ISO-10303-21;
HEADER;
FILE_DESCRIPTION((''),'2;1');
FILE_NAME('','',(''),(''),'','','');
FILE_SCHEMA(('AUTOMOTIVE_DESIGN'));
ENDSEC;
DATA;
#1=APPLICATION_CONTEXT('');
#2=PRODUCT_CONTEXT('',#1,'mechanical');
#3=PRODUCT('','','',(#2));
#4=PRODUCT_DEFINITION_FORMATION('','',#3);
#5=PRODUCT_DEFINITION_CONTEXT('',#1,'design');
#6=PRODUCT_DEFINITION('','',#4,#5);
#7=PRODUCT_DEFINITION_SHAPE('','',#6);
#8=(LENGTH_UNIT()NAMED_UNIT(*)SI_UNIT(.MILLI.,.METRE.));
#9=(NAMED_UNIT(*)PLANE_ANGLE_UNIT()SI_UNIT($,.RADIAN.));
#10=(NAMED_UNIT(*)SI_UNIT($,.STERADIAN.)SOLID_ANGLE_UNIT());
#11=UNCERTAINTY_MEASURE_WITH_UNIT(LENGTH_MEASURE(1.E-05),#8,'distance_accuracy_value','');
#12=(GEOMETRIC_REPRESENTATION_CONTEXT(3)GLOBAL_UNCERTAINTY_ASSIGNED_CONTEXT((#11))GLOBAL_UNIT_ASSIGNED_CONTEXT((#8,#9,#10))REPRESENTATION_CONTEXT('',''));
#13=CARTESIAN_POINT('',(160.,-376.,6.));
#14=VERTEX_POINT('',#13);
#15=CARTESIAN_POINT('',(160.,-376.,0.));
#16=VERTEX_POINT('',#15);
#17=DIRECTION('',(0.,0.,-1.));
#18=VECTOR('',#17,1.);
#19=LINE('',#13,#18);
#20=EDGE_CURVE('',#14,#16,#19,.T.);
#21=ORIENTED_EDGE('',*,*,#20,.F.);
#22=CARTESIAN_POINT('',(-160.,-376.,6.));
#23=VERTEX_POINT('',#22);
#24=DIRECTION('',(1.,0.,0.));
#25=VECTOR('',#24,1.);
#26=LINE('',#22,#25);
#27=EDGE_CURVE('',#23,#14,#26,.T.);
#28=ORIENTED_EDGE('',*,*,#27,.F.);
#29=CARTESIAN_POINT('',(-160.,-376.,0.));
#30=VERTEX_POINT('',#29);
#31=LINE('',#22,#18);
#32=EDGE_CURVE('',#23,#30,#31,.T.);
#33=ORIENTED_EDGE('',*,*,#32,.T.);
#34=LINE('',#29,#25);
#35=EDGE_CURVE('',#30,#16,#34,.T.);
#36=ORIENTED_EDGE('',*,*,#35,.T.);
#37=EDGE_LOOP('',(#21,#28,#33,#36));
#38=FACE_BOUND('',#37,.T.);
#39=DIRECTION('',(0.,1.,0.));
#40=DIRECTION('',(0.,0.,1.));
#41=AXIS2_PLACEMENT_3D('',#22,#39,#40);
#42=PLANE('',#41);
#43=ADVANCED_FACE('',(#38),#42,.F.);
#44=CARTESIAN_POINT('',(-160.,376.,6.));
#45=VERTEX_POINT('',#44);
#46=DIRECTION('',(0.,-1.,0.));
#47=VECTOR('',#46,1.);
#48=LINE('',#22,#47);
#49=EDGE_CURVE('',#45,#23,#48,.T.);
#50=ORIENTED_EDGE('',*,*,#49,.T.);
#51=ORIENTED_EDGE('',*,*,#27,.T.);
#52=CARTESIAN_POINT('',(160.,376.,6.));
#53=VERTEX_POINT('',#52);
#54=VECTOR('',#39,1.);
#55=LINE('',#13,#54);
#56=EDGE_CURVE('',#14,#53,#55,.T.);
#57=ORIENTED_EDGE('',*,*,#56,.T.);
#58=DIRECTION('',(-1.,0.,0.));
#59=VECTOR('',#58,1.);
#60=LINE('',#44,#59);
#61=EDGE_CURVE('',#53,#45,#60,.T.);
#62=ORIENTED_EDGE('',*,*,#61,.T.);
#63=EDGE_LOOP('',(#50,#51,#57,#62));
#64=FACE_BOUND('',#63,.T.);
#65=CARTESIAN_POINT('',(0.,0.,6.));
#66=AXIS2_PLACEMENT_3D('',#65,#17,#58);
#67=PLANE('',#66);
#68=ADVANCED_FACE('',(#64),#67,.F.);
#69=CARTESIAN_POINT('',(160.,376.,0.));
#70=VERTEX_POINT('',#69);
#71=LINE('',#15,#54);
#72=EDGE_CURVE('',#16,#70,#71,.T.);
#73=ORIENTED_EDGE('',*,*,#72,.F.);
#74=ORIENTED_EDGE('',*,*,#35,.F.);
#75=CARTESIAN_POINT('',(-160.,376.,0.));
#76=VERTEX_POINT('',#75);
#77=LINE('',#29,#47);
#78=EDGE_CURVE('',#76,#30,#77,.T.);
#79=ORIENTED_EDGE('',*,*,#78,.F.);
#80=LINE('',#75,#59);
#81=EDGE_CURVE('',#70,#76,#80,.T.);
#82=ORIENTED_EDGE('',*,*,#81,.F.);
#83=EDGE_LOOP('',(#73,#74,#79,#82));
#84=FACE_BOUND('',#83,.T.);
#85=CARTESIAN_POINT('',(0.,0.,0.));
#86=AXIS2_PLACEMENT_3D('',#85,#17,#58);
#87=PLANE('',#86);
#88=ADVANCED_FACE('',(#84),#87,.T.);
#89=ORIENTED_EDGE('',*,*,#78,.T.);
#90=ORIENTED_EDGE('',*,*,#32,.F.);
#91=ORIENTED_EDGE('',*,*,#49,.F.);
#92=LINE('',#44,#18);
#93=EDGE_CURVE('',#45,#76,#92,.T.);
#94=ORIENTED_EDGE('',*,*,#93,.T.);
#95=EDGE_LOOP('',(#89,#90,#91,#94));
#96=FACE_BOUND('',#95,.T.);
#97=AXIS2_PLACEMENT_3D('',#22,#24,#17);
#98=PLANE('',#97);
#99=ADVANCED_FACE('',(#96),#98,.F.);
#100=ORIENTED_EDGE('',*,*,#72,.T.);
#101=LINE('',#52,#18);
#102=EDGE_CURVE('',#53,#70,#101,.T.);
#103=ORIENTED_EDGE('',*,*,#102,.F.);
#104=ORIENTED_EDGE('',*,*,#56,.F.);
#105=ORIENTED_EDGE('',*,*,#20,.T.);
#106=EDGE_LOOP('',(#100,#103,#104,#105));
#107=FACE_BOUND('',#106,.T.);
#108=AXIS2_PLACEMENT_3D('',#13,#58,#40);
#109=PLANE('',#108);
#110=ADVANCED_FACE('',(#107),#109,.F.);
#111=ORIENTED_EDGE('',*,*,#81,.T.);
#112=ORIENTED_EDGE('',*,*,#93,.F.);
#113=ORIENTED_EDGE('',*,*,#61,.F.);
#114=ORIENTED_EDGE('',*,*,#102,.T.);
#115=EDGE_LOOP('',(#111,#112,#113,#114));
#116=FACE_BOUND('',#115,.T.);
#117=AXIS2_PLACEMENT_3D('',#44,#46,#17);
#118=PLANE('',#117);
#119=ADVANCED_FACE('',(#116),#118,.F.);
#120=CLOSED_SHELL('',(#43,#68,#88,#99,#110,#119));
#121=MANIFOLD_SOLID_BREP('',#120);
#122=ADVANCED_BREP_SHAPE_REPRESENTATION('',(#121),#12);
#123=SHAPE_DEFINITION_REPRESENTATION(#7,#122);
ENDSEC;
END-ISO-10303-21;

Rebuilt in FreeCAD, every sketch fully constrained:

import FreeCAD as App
import Part
import Sketcher

V = App.Vector
Q = App.Units.Quantity


def add_polygon(sketch, points):
    """Adds a closed chain of lines whose ends are joined by coincident constraints."""
    first, n = sketch.GeometryCount, len(points)
    for a, b in zip(points, points[1:] + points[:1]):
        sketch.addGeometry(Part.LineSegment(App.Vector(*a, 0), App.Vector(*b, 0)), False)
    for i in range(n):
        sketch.addConstraint(Sketcher.Constraint("Coincident", first + i, 2, first + (i + 1) % n, 1))

doc = App.newDocument("Part")
body = doc.addObject("PartDesign::Body", "Body")

sketch1 = body.newObject("Sketcher::SketchObject", "Sketch")
sketch1.AttachmentSupport = (doc.getObject("XY_Plane"), [""])
sketch1.MapMode = "FlatFace"
add_polygon(sketch1, [(-160, 376), (-160, -376), (160, -376), (160, 376)])
sketch1.addConstraint(Sketcher.Constraint("Vertical", 0))
sketch1.addConstraint(Sketcher.Constraint("Horizontal", 1))
sketch1.addConstraint(Sketcher.Constraint("Vertical", 2))
sketch1.addConstraint(Sketcher.Constraint("Horizontal", 3))
sketch1.addConstraint(Sketcher.Constraint("Symmetric", 0, 2, 2, 2, -1, 1))
sketch1.addConstraint(Sketcher.Constraint("DistanceX", 1, 1, 1, 2, Q("320 mm")))
sketch1.addConstraint(Sketcher.Constraint("DistanceY", 0, 2, 0, 1, Q("752 mm")))
pad1 = body.newObject("PartDesign::Pad", "Pad")
pad1.Profile = sketch1
pad1.Length = 6

doc.recompute()
